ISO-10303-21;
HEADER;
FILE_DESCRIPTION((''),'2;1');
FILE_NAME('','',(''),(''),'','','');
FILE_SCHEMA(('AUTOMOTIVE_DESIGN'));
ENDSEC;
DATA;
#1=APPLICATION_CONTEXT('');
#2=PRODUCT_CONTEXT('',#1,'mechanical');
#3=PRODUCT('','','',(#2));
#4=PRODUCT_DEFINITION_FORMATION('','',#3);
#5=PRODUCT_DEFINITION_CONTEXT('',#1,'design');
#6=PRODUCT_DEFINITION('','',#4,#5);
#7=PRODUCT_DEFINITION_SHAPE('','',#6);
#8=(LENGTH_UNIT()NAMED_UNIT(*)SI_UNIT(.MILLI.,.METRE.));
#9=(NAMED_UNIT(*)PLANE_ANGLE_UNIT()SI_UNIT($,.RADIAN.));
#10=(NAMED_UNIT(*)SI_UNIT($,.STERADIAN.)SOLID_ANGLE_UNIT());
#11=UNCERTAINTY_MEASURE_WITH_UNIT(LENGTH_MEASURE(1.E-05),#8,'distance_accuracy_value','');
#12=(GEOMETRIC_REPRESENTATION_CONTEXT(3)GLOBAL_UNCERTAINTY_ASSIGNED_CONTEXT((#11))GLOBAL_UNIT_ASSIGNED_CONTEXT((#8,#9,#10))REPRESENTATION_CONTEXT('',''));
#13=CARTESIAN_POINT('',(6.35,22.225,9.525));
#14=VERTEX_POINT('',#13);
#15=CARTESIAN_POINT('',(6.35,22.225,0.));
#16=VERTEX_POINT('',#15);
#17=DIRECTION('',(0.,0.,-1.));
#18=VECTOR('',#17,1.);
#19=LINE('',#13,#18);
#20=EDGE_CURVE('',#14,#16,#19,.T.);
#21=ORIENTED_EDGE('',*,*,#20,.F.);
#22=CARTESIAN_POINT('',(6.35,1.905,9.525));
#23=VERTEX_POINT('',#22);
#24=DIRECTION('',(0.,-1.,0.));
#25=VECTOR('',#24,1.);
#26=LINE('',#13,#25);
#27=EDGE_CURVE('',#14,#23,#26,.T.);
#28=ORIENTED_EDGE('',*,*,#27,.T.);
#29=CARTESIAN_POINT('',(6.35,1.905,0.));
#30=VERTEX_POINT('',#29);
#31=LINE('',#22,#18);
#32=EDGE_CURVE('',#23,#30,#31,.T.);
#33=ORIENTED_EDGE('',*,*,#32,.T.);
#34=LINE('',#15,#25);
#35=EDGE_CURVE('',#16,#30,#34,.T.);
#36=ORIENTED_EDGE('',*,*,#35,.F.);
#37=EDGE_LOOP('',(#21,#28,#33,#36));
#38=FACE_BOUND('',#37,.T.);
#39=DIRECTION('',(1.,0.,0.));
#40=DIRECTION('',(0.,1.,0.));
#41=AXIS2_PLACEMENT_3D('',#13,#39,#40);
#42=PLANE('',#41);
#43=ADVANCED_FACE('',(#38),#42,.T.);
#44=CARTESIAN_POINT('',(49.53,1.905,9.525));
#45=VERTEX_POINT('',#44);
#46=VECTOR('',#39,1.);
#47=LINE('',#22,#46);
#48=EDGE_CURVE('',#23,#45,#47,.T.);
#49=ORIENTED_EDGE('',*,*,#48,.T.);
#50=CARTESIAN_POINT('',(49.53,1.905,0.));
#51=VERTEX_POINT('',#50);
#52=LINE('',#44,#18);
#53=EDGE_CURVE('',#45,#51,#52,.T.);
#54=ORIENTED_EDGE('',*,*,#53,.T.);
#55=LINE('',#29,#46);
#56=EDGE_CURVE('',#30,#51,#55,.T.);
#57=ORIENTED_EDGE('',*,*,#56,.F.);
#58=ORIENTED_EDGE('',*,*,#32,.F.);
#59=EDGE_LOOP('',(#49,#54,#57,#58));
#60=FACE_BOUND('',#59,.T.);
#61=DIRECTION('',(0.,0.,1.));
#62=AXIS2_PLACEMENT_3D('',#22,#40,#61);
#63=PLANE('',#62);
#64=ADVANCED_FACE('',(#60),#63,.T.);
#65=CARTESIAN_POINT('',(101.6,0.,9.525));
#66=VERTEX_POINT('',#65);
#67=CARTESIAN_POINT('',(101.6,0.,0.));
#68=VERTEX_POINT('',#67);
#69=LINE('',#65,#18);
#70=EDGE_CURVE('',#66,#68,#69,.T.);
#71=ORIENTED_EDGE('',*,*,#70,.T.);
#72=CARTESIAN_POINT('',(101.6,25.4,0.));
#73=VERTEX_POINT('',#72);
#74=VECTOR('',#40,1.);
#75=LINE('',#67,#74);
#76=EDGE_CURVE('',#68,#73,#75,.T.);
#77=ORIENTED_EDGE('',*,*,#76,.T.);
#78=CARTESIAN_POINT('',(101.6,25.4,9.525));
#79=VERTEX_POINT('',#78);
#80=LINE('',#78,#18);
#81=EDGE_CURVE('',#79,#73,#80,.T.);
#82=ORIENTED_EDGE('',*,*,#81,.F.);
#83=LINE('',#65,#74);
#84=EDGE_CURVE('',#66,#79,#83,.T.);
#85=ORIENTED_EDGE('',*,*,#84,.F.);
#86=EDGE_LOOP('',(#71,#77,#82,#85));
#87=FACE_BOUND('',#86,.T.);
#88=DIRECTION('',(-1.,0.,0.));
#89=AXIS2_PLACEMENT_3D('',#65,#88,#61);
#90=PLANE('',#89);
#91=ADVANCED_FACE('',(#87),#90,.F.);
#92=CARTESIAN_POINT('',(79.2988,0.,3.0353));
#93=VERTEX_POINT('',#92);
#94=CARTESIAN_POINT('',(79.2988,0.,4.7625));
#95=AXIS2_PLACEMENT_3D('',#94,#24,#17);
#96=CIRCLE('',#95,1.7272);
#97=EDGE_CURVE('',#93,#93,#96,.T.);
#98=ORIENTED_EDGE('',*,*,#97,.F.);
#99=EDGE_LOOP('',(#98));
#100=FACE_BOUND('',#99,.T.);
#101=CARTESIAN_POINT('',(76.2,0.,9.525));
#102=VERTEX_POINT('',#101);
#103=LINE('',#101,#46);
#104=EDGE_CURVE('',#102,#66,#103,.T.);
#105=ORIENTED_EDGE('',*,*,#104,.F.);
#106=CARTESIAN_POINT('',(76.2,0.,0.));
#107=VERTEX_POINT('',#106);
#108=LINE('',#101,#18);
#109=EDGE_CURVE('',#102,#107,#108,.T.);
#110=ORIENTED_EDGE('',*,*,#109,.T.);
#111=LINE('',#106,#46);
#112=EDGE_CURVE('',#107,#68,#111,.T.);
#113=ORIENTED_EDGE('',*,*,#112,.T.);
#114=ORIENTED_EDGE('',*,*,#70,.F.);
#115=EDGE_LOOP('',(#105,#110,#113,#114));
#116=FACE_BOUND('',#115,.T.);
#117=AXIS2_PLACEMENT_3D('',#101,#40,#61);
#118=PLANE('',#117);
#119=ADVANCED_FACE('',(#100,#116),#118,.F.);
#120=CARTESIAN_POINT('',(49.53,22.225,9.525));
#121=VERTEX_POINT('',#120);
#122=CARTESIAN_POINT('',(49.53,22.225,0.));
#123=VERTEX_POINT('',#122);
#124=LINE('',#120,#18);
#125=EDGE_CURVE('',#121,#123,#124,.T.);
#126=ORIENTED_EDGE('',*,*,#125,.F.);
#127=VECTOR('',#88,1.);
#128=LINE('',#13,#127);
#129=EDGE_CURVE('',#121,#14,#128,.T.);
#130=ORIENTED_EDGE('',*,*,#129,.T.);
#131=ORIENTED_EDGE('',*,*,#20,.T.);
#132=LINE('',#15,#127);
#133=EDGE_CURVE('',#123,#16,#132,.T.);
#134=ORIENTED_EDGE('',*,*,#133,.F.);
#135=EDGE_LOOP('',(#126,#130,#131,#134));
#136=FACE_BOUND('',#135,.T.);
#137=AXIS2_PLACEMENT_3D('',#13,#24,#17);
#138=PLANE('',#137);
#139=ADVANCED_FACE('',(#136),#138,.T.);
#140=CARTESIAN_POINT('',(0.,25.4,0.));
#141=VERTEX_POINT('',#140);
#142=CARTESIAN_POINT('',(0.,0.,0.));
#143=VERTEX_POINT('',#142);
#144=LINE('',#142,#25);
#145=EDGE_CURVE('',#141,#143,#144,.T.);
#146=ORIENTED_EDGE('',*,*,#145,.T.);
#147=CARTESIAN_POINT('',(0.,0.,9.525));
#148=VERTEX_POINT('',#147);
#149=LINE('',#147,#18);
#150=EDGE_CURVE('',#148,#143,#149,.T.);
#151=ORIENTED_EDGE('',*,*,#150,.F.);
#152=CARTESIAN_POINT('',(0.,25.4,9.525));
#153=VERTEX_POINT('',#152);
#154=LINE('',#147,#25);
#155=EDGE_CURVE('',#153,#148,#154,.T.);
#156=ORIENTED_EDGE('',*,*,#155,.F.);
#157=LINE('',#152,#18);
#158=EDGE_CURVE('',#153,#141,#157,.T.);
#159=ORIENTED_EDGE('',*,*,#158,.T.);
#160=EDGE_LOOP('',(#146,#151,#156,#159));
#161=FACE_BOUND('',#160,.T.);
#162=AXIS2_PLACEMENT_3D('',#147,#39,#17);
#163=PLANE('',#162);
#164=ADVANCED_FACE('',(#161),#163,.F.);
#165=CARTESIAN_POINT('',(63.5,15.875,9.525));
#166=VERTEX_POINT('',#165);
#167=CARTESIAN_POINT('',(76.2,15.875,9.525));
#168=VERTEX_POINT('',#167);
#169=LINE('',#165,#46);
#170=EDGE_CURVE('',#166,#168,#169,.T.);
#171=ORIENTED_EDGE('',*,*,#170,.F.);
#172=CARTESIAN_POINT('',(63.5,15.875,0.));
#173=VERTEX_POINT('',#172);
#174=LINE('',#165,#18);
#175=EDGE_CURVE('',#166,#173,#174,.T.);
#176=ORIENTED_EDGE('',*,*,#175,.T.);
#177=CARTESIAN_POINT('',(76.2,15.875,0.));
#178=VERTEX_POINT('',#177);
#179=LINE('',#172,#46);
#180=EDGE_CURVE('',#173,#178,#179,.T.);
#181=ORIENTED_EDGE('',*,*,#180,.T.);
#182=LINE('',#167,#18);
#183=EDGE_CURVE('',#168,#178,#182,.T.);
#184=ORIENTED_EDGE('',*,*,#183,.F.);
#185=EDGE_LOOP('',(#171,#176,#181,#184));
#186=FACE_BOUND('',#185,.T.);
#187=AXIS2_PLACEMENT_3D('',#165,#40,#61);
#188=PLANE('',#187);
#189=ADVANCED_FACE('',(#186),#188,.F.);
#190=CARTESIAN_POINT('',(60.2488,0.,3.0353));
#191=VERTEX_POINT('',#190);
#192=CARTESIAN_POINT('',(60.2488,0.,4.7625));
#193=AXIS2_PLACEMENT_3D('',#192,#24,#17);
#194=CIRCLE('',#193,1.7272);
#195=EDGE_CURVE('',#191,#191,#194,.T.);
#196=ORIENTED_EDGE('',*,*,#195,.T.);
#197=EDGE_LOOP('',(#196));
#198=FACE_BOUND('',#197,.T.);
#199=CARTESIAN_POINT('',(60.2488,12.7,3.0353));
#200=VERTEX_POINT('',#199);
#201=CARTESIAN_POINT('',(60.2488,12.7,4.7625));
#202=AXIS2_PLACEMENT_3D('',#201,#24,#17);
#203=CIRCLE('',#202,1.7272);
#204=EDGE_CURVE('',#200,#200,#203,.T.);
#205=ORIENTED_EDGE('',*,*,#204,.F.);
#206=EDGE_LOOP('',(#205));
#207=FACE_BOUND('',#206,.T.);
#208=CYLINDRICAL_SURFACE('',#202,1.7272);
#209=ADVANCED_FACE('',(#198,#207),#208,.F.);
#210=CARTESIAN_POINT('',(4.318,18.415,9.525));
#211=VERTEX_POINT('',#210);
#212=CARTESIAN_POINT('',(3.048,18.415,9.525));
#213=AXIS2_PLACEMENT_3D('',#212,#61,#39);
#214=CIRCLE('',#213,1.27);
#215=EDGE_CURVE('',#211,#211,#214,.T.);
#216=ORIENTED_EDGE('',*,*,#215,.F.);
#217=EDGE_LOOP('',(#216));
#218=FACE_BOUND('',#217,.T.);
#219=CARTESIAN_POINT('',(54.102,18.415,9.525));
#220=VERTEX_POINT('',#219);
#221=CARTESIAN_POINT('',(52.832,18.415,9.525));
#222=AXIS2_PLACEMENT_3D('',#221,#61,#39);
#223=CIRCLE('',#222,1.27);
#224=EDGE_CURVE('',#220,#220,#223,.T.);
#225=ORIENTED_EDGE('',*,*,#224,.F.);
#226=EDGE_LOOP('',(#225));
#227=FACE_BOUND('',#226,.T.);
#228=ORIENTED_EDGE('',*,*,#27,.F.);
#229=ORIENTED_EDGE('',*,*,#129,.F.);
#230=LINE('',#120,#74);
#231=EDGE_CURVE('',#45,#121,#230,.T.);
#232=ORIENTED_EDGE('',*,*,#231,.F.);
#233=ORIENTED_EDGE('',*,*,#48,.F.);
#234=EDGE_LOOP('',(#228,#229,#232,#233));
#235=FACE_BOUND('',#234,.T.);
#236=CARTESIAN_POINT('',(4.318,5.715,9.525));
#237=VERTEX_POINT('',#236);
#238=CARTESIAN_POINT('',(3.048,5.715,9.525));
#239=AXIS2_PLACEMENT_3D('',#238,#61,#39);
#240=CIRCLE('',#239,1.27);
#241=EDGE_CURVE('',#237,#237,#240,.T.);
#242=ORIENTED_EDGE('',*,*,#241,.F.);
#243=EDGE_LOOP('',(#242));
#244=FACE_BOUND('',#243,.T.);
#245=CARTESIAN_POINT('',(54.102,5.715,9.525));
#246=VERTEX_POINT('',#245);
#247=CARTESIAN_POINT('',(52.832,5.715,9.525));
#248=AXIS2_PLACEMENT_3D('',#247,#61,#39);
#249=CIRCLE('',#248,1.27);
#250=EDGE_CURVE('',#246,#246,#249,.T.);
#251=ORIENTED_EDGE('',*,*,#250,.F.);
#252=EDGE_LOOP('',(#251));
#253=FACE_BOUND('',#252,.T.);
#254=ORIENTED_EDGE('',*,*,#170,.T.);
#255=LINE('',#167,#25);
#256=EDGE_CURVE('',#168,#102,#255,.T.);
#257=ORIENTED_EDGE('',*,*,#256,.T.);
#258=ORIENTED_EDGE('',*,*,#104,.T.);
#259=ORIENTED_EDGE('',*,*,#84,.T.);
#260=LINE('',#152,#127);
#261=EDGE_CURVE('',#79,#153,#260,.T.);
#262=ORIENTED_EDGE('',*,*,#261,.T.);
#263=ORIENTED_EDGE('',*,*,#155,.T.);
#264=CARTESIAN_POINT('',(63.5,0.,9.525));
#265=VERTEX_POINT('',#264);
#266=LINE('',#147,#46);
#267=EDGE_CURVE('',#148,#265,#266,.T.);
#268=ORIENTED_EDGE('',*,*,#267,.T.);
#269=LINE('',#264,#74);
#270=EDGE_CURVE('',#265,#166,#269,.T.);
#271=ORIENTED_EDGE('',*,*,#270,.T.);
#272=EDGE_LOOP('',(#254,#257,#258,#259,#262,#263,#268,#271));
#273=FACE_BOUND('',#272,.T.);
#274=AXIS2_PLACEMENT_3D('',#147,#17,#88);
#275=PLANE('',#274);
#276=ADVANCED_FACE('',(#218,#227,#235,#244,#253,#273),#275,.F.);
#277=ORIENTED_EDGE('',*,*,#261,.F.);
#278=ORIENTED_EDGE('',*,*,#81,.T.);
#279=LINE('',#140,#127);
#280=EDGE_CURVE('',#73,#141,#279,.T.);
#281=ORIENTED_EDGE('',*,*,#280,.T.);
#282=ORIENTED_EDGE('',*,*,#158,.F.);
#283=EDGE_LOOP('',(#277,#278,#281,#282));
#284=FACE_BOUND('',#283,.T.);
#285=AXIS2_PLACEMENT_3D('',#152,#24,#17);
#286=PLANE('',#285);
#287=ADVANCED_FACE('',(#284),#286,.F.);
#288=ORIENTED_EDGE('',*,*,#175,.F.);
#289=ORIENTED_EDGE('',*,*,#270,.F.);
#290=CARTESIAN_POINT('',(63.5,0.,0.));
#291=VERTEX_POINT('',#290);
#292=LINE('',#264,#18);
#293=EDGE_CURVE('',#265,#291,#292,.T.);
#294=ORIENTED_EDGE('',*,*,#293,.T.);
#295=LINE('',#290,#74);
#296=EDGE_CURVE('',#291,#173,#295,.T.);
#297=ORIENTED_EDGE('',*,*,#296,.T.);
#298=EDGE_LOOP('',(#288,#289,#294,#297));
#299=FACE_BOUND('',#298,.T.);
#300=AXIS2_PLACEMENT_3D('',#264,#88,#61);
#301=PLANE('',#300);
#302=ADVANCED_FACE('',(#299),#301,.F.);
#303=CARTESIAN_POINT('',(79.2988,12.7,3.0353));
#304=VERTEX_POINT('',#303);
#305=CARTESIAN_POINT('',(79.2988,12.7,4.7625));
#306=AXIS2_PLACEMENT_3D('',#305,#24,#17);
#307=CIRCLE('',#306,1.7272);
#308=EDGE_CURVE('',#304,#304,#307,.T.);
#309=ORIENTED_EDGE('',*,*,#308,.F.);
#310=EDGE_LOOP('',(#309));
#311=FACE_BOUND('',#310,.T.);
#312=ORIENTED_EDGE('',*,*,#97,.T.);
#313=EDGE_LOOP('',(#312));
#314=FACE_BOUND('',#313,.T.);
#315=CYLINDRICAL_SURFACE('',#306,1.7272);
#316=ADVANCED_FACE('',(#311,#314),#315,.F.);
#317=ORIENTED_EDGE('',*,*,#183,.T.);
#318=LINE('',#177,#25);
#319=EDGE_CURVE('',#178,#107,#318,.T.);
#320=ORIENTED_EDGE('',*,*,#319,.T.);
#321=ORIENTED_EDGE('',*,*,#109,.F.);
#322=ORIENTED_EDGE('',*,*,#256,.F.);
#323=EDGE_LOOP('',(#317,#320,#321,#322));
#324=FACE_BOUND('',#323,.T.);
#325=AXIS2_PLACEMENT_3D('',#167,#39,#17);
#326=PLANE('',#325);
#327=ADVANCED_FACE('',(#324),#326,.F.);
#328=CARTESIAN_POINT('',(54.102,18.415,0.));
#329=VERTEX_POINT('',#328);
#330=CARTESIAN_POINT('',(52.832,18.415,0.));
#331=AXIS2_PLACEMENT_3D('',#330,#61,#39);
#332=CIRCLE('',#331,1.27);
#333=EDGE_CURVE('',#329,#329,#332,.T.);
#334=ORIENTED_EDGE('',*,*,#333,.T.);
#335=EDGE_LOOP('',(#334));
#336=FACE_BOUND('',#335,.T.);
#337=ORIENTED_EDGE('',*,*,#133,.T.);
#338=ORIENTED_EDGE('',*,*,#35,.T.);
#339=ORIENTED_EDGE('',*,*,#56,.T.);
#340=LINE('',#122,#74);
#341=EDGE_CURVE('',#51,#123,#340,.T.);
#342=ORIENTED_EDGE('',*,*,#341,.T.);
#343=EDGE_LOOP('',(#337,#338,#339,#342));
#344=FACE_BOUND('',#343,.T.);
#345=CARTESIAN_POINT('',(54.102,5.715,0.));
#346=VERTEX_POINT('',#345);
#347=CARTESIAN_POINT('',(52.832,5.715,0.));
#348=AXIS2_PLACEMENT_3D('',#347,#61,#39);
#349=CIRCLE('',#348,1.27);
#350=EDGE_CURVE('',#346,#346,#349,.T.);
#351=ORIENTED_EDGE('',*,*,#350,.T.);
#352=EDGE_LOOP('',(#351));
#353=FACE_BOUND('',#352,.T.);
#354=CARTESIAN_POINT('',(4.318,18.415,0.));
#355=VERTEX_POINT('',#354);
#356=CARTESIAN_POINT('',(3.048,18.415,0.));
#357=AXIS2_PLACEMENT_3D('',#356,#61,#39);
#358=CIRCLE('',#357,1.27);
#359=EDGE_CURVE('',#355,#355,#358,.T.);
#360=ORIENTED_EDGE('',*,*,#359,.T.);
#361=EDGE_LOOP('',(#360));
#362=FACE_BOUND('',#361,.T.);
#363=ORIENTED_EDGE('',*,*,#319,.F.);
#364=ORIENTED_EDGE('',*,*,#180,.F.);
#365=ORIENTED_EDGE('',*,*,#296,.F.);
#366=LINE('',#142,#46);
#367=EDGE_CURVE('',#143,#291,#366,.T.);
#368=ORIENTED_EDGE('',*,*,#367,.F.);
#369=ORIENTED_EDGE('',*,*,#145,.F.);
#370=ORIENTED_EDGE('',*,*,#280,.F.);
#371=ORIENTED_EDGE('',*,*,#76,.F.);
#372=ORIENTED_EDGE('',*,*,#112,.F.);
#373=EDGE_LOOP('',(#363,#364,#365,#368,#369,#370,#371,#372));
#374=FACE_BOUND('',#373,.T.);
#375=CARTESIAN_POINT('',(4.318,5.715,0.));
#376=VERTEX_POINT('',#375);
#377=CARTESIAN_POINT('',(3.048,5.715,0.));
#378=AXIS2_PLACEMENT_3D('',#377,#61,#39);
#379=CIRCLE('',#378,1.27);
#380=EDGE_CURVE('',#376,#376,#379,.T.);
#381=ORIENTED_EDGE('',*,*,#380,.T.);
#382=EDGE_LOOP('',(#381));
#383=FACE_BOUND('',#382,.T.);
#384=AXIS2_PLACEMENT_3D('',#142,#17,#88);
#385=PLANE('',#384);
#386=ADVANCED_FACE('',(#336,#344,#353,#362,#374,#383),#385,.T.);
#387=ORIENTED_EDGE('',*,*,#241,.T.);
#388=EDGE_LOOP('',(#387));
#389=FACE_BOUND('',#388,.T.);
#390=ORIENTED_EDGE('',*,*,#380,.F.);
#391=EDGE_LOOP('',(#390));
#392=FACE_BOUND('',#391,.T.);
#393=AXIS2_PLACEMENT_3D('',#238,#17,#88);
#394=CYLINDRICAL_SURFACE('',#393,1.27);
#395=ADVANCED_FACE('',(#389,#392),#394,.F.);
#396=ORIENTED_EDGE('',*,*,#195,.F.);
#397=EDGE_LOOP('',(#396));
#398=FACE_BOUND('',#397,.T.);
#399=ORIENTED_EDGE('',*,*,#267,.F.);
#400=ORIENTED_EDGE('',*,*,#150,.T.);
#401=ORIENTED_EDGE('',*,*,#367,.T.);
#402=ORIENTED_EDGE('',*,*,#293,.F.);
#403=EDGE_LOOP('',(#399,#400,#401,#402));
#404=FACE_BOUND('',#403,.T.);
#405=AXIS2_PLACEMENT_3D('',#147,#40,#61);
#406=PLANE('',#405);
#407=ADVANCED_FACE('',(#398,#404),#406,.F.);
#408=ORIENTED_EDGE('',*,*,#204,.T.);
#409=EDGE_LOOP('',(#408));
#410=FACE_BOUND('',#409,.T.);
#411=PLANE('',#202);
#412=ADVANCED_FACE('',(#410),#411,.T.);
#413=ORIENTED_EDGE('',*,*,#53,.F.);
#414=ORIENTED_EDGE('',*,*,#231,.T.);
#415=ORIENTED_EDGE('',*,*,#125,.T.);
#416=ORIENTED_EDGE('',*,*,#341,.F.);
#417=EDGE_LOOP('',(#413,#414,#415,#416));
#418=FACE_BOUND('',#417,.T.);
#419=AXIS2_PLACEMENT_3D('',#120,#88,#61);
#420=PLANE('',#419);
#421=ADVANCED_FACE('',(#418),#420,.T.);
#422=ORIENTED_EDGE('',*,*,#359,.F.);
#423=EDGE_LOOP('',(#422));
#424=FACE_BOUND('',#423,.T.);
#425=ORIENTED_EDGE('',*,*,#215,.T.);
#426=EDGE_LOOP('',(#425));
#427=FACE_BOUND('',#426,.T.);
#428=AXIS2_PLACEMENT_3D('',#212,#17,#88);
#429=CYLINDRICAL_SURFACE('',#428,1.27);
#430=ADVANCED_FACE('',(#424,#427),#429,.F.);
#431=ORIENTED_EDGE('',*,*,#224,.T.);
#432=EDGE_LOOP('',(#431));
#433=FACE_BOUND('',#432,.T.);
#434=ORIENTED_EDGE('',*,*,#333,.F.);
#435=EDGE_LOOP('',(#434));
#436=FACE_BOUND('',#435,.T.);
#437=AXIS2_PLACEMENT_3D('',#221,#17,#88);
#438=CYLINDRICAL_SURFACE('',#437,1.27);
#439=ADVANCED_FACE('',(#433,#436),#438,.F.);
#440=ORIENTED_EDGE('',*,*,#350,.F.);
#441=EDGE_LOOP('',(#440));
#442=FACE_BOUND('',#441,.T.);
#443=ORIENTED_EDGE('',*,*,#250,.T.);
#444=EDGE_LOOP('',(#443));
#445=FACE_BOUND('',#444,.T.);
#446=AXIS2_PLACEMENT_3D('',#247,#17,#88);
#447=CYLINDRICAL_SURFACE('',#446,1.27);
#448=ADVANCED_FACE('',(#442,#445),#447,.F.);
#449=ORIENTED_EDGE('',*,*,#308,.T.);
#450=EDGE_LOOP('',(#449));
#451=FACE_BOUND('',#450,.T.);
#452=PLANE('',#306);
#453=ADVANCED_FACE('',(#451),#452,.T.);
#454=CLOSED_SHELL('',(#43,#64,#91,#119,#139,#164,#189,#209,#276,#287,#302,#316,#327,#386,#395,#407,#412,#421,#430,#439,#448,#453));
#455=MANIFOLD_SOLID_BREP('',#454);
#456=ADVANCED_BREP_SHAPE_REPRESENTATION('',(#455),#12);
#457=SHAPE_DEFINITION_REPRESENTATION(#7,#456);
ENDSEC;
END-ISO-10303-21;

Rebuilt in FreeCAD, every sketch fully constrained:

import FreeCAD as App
import Part
import Sketcher
from FreeCAD import Vector
Q = App.Units.Quantity


def add_polygon(sketch, points):
    """Adds a closed chain of lines whose ends are joined by coincident constraints."""
    first, n = sketch.GeometryCount, len(points)
    for a, b in zip(points, points[1:] + points[:1]):
        sketch.addGeometry(Part.LineSegment(App.Vector(*a, 0), App.Vector(*b, 0)), False)
    for i in range(n):
        sketch.addConstraint(Sketcher.Constraint("Coincident", first + i, 2, first + (i + 1) % n, 1))

doc = App.newDocument("Part")
body = doc.addObject("PartDesign::Body", "Body")

# Sketch on XY plane
sketch1 = doc.addObject("Sketcher::SketchObject", "Sketch")
body.addObject(sketch1)
sketch1.AttachmentSupport = (doc.XY_Plane, [""])
sketch1.MapMode = "FlatFace"
add_polygon(sketch1, [(0, 0), (63.5, 0), (63.5, 15.875), (76.2, 15.875), (76.2, 0), (101.6, 0), (101.6, 25.4), (0, 25.4)])  # lines 0-7
sketch1.addGeometry(Part.Circle(Vector(3.048, 5.715, 0), Vector(0, 0, 1), 1.27), False)  # 8
add_polygon(sketch1, [(49.53, 1.905), (6.35, 1.905), (6.35, 22.225), (49.53, 22.225)])  # lines 9-12
sketch1.addGeometry(Part.Circle(Vector(52.832, 5.715, 0), Vector(0, 0, 1), 1.27), False)  # 13
sketch1.addGeometry(Part.Circle(Vector(3.048, 18.415, 0), Vector(0, 0, 1), 1.27), False)  # 14
sketch1.addGeometry(Part.Circle(Vector(52.832, 18.415, 0), Vector(0, 0, 1), 1.27), False)  # 15
sketch1.addConstraint([
    Sketcher.Constraint("Horizontal", 0),
    Sketcher.Constraint("Vertical", 1),
    Sketcher.Constraint("Horizontal", 2),
    Sketcher.Constraint("Vertical", 3),
    Sketcher.Constraint("Horizontal", 4),
    Sketcher.Constraint("Vertical", 5),
    Sketcher.Constraint("Horizontal", 6),
    Sketcher.Constraint("Vertical", 7),
    Sketcher.Constraint("Horizontal", 9),
    Sketcher.Constraint("Vertical", 10),
    Sketcher.Constraint("Horizontal", 11),
    Sketcher.Constraint("Vertical", 12),
    Sketcher.Constraint("Coincident", 7, 2, -1, 1),
    Sketcher.Constraint("Equal", 8, 13),
    Sketcher.Constraint("Equal", 13, 14),
    Sketcher.Constraint("Equal", 14, 15),
    Sketcher.Constraint("PointOnObject", 3, 2, -1),
    Sketcher.Constraint("Horizontal", 8, 3, 13, 3),
    Sketcher.Constraint("Horizontal", 14, 3, 15, 3),
    Sketcher.Constraint("Vertical", 8, 3, 14, 3),
    Sketcher.Constraint("Vertical", 13, 3, 15, 3),
    Sketcher.Constraint("Equal", 4, 5),
    Sketcher.Constraint("Diameter", 8, Q("0.1 in")),
    Sketcher.Constraint("DistanceX", 4, 1, 4, 2, Q("1 in")),
    Sketcher.Constraint("DistanceX", 6, 2, 6, 1, Q("4 in")),
    Sketcher.Constraint("DistanceX", 0, 1, 0, 2, Q("2.5 in")),
    Sketcher.Constraint("DistanceX", 9, 2, 9, 1, Q("1.7 in")),
    Sketcher.Constraint("DistanceY", 10, 1, 10, 2, Q("0.8 in")),
    Sketcher.Constraint("DistanceY", 8, 3, 14, 3, Q("0.5 in")),
    Sketcher.Constraint("DistanceY", 1, 2, 15, 3, Q("0.1 in")),
    Sketcher.Constraint("DistanceY", 1, 1, 1, 2, Q("0.625 in")),
    Sketcher.Constraint("DistanceX", -1, 1, 8, 3, Q("0.12 in")),
    Sketcher.Constraint("DistanceX", -1, 1, 13, 3, Q("2.08 in")),
    Sketcher.Constraint("DistanceX", -1, 1, 9, 2, Q("0.25 in")),
    Sketcher.Constraint("DistanceY", 9, 2, 8, 3, Q("0.15 in")),
])
pad1 = doc.addObject("PartDesign::Pad", "Pad")
body.addObject(pad1)
pad1.Profile = sketch1
pad1.Length = Q("0.375 in")

# Sketch on XZ plane
sketch2 = doc.addObject("Sketcher::SketchObject", "Sketch001")
body.addObject(sketch2)
sketch2.AttachmentSupport = (doc.XZ_Plane, [""])
sketch2.MapMode = "FlatFace"
sketch2.addGeometry([
    Part.Circle(Vector(60.2488, 4.7625, 0), Vector(0, 0, 1), 1.7272),
    Part.Circle(Vector(79.2988, 4.7625, 0), Vector(0, 0, 1), 1.7272),
], False)
sketch2.addConstraint([
    Sketcher.Constraint("Equal", 0, 1),
    Sketcher.Constraint("Horizontal", 0, 3, 1, 3),
    Sketcher.Constraint("Diameter", 0, Q("0.136 in")),
    Sketcher.Constraint("DistanceX", 0, 3, 1, 3, Q("0.75 in")),
    Sketcher.Constraint("DistanceX", -1, 1, 0, 3, Q("2.372 in")),
    Sketcher.Constraint("DistanceY", -1, 1, 0, 3, Q("0.1875 in")),
])
pocket1 = doc.addObject("PartDesign::Pocket", "Pocket")
body.addObject(pocket1)
pocket1.Profile = sketch2
pocket1.Length = Q("0.5 in")

doc.recompute()
